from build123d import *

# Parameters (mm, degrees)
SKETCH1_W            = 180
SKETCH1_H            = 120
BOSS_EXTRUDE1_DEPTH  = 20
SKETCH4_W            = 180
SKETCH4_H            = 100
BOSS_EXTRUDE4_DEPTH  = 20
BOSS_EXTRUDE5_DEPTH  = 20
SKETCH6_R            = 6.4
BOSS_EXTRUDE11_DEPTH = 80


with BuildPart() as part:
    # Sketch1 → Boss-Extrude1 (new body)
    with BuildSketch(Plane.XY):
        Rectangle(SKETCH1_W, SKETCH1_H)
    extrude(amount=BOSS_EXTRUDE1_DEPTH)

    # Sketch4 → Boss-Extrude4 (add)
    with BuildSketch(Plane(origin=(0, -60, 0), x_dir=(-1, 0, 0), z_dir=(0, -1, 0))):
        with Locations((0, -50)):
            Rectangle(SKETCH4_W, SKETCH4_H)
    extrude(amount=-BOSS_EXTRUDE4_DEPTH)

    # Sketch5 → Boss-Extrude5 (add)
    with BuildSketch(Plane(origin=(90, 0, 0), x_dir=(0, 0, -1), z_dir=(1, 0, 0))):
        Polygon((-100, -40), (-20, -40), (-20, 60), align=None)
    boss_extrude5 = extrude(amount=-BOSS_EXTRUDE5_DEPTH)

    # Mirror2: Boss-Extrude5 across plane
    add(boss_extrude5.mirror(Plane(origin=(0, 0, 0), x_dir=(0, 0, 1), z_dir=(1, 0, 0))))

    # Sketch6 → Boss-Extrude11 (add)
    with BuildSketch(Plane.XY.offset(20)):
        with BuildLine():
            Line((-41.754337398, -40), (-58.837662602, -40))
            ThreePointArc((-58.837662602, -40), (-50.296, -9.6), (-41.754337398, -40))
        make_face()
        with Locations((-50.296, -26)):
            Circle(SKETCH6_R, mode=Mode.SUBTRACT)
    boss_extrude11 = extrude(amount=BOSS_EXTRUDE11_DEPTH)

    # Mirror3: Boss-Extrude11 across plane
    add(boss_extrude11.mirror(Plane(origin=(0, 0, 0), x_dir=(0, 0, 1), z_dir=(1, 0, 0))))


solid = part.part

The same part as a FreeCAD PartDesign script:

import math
import FreeCAD as App
import Part
import Sketcher


def add_polygon(sketch, points):
    """Adds a closed chain of lines whose ends are joined by coincident constraints."""
    first, n = sketch.GeometryCount, len(points)
    for a, b in zip(points, points[1:] + points[:1]):
        sketch.addGeometry(Part.LineSegment(App.Vector(*a, 0), App.Vector(*b, 0)), False)
    for i in range(n):
        sketch.addConstraint(Sketcher.Constraint("Coincident", first + i, 2, first + (i + 1) % n, 1))

doc = App.newDocument("Part")
body = doc.addObject("PartDesign::Body", "Body")

sketch1 = body.newObject("Sketcher::SketchObject", "Sketch")
sketch1.AttachmentSupport = (doc.getObject("XY_Plane"), [""])
sketch1.MapMode = "FlatFace"
add_polygon(sketch1, [(-90, 60), (-90, -60), (90, -60), (90, 60)])
sketch1.addConstraint(Sketcher.Constraint("Vertical", 0))
sketch1.addConstraint(Sketcher.Constraint("Horizontal", 1))
sketch1.addConstraint(Sketcher.Constraint("Vertical", 2))
sketch1.addConstraint(Sketcher.Constraint("Horizontal", 3))
sketch1.addConstraint(Sketcher.Constraint("Symmetric", 0, 2, 2, 2, -1, 1))
sketch1.addConstraint(Sketcher.Constraint("DistanceX", 1, 1, 1, 2, 180.0))
sketch1.addConstraint(Sketcher.Constraint("DistanceY", 0, 2, 0, 1, 120.0))
pad1 = body.newObject("PartDesign::Pad", "Pad")
pad1.Profile = sketch1
pad1.Length = 20

sketch2 = body.newObject("Sketcher::SketchObject", "Sketch001")
sketch2.AttachmentSupport = (doc.getObject("XZ_Plane"), [""])
sketch2.MapMode = "FlatFace"
sketch2.AttachmentOffset = App.Placement(App.Vector(0, 0, 60), App.Rotation())
add_polygon(sketch2, [(90, 0), (90, 100), (-90, 100), (-90, 0)])
sketch2.addConstraint(Sketcher.Constraint("Vertical", 0))
sketch2.addConstraint(Sketcher.Constraint("Horizontal", 1))
sketch2.addConstraint(Sketcher.Constraint("Vertical", 2))
sketch2.addConstraint(Sketcher.Constraint("Horizontal", 3))
sketch2.addConstraint(Sketcher.Constraint("Symmetric", 2, 2, 3, 2, -1, 1))
sketch2.addConstraint(Sketcher.Constraint("DistanceX", 1, 2, 1, 1, 180.0))
sketch2.addConstraint(Sketcher.Constraint("DistanceY", 0, 1, 0, 2, 100.0))
pad2 = body.newObject("PartDesign::Pad", "Pad001")
pad2.Profile = sketch2
pad2.Length = 20
pad2.Reversed = True

sketch3 = body.newObject("Sketcher::SketchObject", "Sketch002")
sketch3.AttachmentSupport = (doc.getObject("YZ_Plane"), [""])
sketch3.MapMode = "FlatFace"
sketch3.AttachmentOffset = App.Placement(App.Vector(0, 0, 90), App.Rotation())
add_polygon(sketch3, [(-40, 100), (-40, 20), (60, 20)])
sketch3.addConstraint(Sketcher.Constraint("Vertical", 0))
sketch3.addConstraint(Sketcher.Constraint("Horizontal", 1))
sketch3.addConstraint(Sketcher.Constraint("DistanceX", 1, 1, 1, 2, 100.0))
sketch3.addConstraint(Sketcher.Constraint("DistanceY", 0, 2, 0, 1, 80.0))
sketch3.addConstraint(Sketcher.Constraint("DistanceX", 0, 2, -1, 1, 40.0))
sketch3.addConstraint(Sketcher.Constraint("DistanceY", -1, 1, 0, 2, 20.0))
pad3 = body.newObject("PartDesign::Pad", "Pad002")
pad3.Profile = sketch3
pad3.Length = 20
pad3.Reversed = True
doc.recompute()

mirrored = body.newObject("PartDesign::Mirrored", "Mirrored")
mirrored.Originals = [pad3]
mirrored.MirrorPlane = (doc.getObject("YZ_Plane"), [""])
body.Tip = mirrored

sketch4 = body.newObject("Sketcher::SketchObject", "Sketch003")
sketch4.AttachmentSupport = (doc.getObject("XY_Plane"), [""])
sketch4.MapMode = "FlatFace"
sketch4.AttachmentOffset = App.Placement(App.Vector(0, 0, 20), App.Rotation())
sketch4.addGeometry(Part.LineSegment(App.Vector(-59, -40, 0), App.Vector(-42, -40, 0)), False)
sketch4.addGeometry(Part.ArcOfCircle(Part.Circle(App.Vector(-50, -26, 0), App.Vector(0, 0, 1), 16), math.radians(-59), math.radians(239)), False)
sketch4.addGeometry(Part.Circle(App.Vector(-50, -26, 0), App.Vector(0, 0, 1), 6), False)
sketch4.addConstraint(Sketcher.Constraint("Coincident", 0, 1, 1, 2))
sketch4.addConstraint(Sketcher.Constraint("Coincident", 1, 1, 0, 2))
sketch4.addConstraint(Sketcher.Constraint("Horizontal", 0))
sketch4.addConstraint(Sketcher.Constraint("Coincident", 2, 3, 1, 3))
sketch4.addConstraint(Sketcher.Constraint("Diameter", 2, 12.8))
sketch4.addConstraint(Sketcher.Constraint("Radius", 1, 16.4))
sketch4.addConstraint(Sketcher.Constraint("DistanceY", 1, 3, -1, 1, 26.0))
sketch4.addConstraint(Sketcher.Constraint("DistanceY", 0, 1, -1, 1, 40.0))
sketch4.addConstraint(Sketcher.Constraint("DistanceX", 1, 3, -1, 1, 50.296))
pad4 = body.newObject("PartDesign::Pad", "Pad003")
pad4.Profile = sketch4
pad4.Length = 80
doc.recompute()

mirrored2 = body.newObject("PartDesign::Mirrored", "Mirrored001")
mirrored2.Originals = [pad4]
mirrored2.MirrorPlane = (doc.getObject("YZ_Plane"), [""])
body.Tip = mirrored2

doc.recompute()
